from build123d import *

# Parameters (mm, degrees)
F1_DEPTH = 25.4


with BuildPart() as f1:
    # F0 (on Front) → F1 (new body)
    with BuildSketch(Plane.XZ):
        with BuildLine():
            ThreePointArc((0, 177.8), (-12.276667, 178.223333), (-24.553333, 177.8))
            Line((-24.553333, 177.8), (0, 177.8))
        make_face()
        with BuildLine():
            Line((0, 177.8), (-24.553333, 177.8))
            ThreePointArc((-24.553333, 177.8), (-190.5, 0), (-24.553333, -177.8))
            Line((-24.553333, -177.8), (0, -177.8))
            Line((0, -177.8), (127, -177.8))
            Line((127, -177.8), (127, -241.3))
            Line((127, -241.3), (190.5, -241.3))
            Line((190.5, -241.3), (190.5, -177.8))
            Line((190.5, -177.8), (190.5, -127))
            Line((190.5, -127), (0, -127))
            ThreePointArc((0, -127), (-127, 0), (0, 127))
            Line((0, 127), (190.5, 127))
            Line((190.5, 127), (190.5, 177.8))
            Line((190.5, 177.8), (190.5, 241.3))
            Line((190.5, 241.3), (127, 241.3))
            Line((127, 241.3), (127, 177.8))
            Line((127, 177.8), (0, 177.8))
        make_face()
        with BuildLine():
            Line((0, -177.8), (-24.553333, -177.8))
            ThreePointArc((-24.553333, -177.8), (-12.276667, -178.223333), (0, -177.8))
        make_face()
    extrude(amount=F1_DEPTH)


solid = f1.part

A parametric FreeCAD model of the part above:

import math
import FreeCAD as App
import Part
import Sketcher

V = App.Vector
Q = App.Units.Quantity

doc = App.newDocument("Part")
body = doc.addObject("PartDesign::Body", "Body")

sketch1 = doc.addObject("Sketcher::SketchObject", "Sketch")
body.addObject(sketch1)
sketch1.AttachmentSupport = (doc.XZ_Plane, [""])
sketch1.MapMode = "FlatFace"
sketch1.addGeometry([
    Part.ArcOfCircle(Part.Circle(V(-12.276666, -0.000135, 0), V(0, 0, 1), 178.223468), math.radians(86.050135), math.radians(93.949865)),
    Part.ArcOfCircle(Part.Circle(V(-12.276667, 0, 0), V(0, 0, 1), 178.223333), math.radians(93.949868), math.radians(266.050132)),
    Part.ArcOfCircle(Part.Circle(V(-12.276666, 0.000135, 0), V(0, 0, 1), 178.223468), math.radians(-93.949865), math.radians(-86.050135)),
    Part.LineSegment(V(0, -177.8, 0), V(127, -177.8, 0)),
    Part.LineSegment(V(127, -177.8, 0), V(127, -241.3, 0)),
    Part.LineSegment(V(127, -241.3, 0), V(190.5, -241.3, 0)),
    Part.LineSegment(V(190.5, -241.3, 0), V(190.5, -127, 0)),
    Part.LineSegment(V(190.5, -127, 0), V(0, -127, 0)),
    Part.ArcOfCircle(Part.Circle(V(0, 0, 0), V(0, 0, 1), 127), math.radians(90), math.radians(270)),
    Part.LineSegment(V(0, 127, 0), V(190.5, 127, 0)),
    Part.LineSegment(V(190.5, 127, 0), V(190.5, 241.3, 0)),
    Part.LineSegment(V(190.5, 241.3, 0), V(127, 241.3, 0)),
    Part.LineSegment(V(127, 241.3, 0), V(127, 177.8, 0)),
    Part.LineSegment(V(127, 177.8, 0), V(0, 177.8, 0)),
], False)
sketch1.addConstraint([
    Sketcher.Constraint("Coincident", 0, 2, 1, 1),
    Sketcher.Constraint("Coincident", 1, 2, 2, 1),
    Sketcher.Constraint("Coincident", 2, 2, 3, 1),
    Sketcher.Constraint("Coincident", 3, 2, 4, 1),
    Sketcher.Constraint("Coincident", 4, 2, 5, 1),
    Sketcher.Constraint("Coincident", 5, 2, 6, 1),
    Sketcher.Constraint("Coincident", 6, 2, 7, 1),
    Sketcher.Constraint("Coincident", 7, 2, 8, 2),
    Sketcher.Constraint("Coincident", 8, 1, 9, 1),
    Sketcher.Constraint("Coincident", 9, 2, 10, 1),
    Sketcher.Constraint("Coincident", 10, 2, 11, 1),
    Sketcher.Constraint("Coincident", 11, 2, 12, 1),
    Sketcher.Constraint("Coincident", 12, 2, 13, 1),
    Sketcher.Constraint("Coincident", 13, 2, 0, 1),
    Sketcher.Constraint("Horizontal", 3),
    Sketcher.Constraint("Vertical", 4),
    Sketcher.Constraint("Horizontal", 5),
    Sketcher.Constraint("Vertical", 6),
    Sketcher.Constraint("Horizontal", 7),
    Sketcher.Constraint("Horizontal", 9),
    Sketcher.Constraint("Vertical", 10),
    Sketcher.Constraint("Horizontal", 11),
    Sketcher.Constraint("Vertical", 12),
    Sketcher.Constraint("Horizontal", 13),
    Sketcher.Constraint("Coincident", 8, 3, -1, 1),
    Sketcher.Constraint("PointOnObject", 1, 3, -1),
    Sketcher.Constraint("PointOnObject", 2, 2, -2),
    Sketcher.Constraint("PointOnObject", 7, 2, -2),
    Sketcher.Constraint("PointOnObject", 8, 1, -2),
    Sketcher.Constraint("PointOnObject", 13, 2, -2),
    Sketcher.Constraint("Radius", 8, Q("5 in")),
    Sketcher.Constraint("DistanceX", 3, 1, 3, 2, Q("5 in")),
    Sketcher.Constraint("DistanceX", 13, 2, 13, 1, Q("5 in")),
    Sketcher.Constraint("DistanceX", 5, 1, 5, 2, Q("2.5 in")),
    Sketcher.Constraint("DistanceX", 9, 1, 9, 2, Q("7.5 in")),
    Sketcher.Constraint("DistanceY", 4, 2, 4, 1, Q("2.5 in")),
    Sketcher.Constraint("DistanceY", 6, 1, 6, 2, Q("4.5 in")),
    Sketcher.Constraint("DistanceY", 10, 1, 10, 2, Q("4.5 in")),
    Sketcher.Constraint("DistanceY", 12, 2, 12, 1, Q("2.5 in")),
    Sketcher.Constraint("DistanceY", -1, 1, 0, 2, Q("7 in")),
    Sketcher.Constraint("DistanceY", 1, 2, -1, 1, Q("7 in")),
    Sketcher.Constraint("Radius", 0, Q("178.223468 mm")),
    Sketcher.Constraint("Radius", 2, Q("178.223468 mm")),
    Sketcher.Constraint("Radius", 1, Q("178.223333 mm")),
    Sketcher.Constraint("DistanceY", 0, 3, 2, 3, Q("0.000271 mm")),
])
pad1 = doc.addObject("PartDesign::Pad", "Pad")
body.addObject(pad1)
pad1.Profile = sketch1
pad1.Length = Q("1 in")

doc.recompute()
